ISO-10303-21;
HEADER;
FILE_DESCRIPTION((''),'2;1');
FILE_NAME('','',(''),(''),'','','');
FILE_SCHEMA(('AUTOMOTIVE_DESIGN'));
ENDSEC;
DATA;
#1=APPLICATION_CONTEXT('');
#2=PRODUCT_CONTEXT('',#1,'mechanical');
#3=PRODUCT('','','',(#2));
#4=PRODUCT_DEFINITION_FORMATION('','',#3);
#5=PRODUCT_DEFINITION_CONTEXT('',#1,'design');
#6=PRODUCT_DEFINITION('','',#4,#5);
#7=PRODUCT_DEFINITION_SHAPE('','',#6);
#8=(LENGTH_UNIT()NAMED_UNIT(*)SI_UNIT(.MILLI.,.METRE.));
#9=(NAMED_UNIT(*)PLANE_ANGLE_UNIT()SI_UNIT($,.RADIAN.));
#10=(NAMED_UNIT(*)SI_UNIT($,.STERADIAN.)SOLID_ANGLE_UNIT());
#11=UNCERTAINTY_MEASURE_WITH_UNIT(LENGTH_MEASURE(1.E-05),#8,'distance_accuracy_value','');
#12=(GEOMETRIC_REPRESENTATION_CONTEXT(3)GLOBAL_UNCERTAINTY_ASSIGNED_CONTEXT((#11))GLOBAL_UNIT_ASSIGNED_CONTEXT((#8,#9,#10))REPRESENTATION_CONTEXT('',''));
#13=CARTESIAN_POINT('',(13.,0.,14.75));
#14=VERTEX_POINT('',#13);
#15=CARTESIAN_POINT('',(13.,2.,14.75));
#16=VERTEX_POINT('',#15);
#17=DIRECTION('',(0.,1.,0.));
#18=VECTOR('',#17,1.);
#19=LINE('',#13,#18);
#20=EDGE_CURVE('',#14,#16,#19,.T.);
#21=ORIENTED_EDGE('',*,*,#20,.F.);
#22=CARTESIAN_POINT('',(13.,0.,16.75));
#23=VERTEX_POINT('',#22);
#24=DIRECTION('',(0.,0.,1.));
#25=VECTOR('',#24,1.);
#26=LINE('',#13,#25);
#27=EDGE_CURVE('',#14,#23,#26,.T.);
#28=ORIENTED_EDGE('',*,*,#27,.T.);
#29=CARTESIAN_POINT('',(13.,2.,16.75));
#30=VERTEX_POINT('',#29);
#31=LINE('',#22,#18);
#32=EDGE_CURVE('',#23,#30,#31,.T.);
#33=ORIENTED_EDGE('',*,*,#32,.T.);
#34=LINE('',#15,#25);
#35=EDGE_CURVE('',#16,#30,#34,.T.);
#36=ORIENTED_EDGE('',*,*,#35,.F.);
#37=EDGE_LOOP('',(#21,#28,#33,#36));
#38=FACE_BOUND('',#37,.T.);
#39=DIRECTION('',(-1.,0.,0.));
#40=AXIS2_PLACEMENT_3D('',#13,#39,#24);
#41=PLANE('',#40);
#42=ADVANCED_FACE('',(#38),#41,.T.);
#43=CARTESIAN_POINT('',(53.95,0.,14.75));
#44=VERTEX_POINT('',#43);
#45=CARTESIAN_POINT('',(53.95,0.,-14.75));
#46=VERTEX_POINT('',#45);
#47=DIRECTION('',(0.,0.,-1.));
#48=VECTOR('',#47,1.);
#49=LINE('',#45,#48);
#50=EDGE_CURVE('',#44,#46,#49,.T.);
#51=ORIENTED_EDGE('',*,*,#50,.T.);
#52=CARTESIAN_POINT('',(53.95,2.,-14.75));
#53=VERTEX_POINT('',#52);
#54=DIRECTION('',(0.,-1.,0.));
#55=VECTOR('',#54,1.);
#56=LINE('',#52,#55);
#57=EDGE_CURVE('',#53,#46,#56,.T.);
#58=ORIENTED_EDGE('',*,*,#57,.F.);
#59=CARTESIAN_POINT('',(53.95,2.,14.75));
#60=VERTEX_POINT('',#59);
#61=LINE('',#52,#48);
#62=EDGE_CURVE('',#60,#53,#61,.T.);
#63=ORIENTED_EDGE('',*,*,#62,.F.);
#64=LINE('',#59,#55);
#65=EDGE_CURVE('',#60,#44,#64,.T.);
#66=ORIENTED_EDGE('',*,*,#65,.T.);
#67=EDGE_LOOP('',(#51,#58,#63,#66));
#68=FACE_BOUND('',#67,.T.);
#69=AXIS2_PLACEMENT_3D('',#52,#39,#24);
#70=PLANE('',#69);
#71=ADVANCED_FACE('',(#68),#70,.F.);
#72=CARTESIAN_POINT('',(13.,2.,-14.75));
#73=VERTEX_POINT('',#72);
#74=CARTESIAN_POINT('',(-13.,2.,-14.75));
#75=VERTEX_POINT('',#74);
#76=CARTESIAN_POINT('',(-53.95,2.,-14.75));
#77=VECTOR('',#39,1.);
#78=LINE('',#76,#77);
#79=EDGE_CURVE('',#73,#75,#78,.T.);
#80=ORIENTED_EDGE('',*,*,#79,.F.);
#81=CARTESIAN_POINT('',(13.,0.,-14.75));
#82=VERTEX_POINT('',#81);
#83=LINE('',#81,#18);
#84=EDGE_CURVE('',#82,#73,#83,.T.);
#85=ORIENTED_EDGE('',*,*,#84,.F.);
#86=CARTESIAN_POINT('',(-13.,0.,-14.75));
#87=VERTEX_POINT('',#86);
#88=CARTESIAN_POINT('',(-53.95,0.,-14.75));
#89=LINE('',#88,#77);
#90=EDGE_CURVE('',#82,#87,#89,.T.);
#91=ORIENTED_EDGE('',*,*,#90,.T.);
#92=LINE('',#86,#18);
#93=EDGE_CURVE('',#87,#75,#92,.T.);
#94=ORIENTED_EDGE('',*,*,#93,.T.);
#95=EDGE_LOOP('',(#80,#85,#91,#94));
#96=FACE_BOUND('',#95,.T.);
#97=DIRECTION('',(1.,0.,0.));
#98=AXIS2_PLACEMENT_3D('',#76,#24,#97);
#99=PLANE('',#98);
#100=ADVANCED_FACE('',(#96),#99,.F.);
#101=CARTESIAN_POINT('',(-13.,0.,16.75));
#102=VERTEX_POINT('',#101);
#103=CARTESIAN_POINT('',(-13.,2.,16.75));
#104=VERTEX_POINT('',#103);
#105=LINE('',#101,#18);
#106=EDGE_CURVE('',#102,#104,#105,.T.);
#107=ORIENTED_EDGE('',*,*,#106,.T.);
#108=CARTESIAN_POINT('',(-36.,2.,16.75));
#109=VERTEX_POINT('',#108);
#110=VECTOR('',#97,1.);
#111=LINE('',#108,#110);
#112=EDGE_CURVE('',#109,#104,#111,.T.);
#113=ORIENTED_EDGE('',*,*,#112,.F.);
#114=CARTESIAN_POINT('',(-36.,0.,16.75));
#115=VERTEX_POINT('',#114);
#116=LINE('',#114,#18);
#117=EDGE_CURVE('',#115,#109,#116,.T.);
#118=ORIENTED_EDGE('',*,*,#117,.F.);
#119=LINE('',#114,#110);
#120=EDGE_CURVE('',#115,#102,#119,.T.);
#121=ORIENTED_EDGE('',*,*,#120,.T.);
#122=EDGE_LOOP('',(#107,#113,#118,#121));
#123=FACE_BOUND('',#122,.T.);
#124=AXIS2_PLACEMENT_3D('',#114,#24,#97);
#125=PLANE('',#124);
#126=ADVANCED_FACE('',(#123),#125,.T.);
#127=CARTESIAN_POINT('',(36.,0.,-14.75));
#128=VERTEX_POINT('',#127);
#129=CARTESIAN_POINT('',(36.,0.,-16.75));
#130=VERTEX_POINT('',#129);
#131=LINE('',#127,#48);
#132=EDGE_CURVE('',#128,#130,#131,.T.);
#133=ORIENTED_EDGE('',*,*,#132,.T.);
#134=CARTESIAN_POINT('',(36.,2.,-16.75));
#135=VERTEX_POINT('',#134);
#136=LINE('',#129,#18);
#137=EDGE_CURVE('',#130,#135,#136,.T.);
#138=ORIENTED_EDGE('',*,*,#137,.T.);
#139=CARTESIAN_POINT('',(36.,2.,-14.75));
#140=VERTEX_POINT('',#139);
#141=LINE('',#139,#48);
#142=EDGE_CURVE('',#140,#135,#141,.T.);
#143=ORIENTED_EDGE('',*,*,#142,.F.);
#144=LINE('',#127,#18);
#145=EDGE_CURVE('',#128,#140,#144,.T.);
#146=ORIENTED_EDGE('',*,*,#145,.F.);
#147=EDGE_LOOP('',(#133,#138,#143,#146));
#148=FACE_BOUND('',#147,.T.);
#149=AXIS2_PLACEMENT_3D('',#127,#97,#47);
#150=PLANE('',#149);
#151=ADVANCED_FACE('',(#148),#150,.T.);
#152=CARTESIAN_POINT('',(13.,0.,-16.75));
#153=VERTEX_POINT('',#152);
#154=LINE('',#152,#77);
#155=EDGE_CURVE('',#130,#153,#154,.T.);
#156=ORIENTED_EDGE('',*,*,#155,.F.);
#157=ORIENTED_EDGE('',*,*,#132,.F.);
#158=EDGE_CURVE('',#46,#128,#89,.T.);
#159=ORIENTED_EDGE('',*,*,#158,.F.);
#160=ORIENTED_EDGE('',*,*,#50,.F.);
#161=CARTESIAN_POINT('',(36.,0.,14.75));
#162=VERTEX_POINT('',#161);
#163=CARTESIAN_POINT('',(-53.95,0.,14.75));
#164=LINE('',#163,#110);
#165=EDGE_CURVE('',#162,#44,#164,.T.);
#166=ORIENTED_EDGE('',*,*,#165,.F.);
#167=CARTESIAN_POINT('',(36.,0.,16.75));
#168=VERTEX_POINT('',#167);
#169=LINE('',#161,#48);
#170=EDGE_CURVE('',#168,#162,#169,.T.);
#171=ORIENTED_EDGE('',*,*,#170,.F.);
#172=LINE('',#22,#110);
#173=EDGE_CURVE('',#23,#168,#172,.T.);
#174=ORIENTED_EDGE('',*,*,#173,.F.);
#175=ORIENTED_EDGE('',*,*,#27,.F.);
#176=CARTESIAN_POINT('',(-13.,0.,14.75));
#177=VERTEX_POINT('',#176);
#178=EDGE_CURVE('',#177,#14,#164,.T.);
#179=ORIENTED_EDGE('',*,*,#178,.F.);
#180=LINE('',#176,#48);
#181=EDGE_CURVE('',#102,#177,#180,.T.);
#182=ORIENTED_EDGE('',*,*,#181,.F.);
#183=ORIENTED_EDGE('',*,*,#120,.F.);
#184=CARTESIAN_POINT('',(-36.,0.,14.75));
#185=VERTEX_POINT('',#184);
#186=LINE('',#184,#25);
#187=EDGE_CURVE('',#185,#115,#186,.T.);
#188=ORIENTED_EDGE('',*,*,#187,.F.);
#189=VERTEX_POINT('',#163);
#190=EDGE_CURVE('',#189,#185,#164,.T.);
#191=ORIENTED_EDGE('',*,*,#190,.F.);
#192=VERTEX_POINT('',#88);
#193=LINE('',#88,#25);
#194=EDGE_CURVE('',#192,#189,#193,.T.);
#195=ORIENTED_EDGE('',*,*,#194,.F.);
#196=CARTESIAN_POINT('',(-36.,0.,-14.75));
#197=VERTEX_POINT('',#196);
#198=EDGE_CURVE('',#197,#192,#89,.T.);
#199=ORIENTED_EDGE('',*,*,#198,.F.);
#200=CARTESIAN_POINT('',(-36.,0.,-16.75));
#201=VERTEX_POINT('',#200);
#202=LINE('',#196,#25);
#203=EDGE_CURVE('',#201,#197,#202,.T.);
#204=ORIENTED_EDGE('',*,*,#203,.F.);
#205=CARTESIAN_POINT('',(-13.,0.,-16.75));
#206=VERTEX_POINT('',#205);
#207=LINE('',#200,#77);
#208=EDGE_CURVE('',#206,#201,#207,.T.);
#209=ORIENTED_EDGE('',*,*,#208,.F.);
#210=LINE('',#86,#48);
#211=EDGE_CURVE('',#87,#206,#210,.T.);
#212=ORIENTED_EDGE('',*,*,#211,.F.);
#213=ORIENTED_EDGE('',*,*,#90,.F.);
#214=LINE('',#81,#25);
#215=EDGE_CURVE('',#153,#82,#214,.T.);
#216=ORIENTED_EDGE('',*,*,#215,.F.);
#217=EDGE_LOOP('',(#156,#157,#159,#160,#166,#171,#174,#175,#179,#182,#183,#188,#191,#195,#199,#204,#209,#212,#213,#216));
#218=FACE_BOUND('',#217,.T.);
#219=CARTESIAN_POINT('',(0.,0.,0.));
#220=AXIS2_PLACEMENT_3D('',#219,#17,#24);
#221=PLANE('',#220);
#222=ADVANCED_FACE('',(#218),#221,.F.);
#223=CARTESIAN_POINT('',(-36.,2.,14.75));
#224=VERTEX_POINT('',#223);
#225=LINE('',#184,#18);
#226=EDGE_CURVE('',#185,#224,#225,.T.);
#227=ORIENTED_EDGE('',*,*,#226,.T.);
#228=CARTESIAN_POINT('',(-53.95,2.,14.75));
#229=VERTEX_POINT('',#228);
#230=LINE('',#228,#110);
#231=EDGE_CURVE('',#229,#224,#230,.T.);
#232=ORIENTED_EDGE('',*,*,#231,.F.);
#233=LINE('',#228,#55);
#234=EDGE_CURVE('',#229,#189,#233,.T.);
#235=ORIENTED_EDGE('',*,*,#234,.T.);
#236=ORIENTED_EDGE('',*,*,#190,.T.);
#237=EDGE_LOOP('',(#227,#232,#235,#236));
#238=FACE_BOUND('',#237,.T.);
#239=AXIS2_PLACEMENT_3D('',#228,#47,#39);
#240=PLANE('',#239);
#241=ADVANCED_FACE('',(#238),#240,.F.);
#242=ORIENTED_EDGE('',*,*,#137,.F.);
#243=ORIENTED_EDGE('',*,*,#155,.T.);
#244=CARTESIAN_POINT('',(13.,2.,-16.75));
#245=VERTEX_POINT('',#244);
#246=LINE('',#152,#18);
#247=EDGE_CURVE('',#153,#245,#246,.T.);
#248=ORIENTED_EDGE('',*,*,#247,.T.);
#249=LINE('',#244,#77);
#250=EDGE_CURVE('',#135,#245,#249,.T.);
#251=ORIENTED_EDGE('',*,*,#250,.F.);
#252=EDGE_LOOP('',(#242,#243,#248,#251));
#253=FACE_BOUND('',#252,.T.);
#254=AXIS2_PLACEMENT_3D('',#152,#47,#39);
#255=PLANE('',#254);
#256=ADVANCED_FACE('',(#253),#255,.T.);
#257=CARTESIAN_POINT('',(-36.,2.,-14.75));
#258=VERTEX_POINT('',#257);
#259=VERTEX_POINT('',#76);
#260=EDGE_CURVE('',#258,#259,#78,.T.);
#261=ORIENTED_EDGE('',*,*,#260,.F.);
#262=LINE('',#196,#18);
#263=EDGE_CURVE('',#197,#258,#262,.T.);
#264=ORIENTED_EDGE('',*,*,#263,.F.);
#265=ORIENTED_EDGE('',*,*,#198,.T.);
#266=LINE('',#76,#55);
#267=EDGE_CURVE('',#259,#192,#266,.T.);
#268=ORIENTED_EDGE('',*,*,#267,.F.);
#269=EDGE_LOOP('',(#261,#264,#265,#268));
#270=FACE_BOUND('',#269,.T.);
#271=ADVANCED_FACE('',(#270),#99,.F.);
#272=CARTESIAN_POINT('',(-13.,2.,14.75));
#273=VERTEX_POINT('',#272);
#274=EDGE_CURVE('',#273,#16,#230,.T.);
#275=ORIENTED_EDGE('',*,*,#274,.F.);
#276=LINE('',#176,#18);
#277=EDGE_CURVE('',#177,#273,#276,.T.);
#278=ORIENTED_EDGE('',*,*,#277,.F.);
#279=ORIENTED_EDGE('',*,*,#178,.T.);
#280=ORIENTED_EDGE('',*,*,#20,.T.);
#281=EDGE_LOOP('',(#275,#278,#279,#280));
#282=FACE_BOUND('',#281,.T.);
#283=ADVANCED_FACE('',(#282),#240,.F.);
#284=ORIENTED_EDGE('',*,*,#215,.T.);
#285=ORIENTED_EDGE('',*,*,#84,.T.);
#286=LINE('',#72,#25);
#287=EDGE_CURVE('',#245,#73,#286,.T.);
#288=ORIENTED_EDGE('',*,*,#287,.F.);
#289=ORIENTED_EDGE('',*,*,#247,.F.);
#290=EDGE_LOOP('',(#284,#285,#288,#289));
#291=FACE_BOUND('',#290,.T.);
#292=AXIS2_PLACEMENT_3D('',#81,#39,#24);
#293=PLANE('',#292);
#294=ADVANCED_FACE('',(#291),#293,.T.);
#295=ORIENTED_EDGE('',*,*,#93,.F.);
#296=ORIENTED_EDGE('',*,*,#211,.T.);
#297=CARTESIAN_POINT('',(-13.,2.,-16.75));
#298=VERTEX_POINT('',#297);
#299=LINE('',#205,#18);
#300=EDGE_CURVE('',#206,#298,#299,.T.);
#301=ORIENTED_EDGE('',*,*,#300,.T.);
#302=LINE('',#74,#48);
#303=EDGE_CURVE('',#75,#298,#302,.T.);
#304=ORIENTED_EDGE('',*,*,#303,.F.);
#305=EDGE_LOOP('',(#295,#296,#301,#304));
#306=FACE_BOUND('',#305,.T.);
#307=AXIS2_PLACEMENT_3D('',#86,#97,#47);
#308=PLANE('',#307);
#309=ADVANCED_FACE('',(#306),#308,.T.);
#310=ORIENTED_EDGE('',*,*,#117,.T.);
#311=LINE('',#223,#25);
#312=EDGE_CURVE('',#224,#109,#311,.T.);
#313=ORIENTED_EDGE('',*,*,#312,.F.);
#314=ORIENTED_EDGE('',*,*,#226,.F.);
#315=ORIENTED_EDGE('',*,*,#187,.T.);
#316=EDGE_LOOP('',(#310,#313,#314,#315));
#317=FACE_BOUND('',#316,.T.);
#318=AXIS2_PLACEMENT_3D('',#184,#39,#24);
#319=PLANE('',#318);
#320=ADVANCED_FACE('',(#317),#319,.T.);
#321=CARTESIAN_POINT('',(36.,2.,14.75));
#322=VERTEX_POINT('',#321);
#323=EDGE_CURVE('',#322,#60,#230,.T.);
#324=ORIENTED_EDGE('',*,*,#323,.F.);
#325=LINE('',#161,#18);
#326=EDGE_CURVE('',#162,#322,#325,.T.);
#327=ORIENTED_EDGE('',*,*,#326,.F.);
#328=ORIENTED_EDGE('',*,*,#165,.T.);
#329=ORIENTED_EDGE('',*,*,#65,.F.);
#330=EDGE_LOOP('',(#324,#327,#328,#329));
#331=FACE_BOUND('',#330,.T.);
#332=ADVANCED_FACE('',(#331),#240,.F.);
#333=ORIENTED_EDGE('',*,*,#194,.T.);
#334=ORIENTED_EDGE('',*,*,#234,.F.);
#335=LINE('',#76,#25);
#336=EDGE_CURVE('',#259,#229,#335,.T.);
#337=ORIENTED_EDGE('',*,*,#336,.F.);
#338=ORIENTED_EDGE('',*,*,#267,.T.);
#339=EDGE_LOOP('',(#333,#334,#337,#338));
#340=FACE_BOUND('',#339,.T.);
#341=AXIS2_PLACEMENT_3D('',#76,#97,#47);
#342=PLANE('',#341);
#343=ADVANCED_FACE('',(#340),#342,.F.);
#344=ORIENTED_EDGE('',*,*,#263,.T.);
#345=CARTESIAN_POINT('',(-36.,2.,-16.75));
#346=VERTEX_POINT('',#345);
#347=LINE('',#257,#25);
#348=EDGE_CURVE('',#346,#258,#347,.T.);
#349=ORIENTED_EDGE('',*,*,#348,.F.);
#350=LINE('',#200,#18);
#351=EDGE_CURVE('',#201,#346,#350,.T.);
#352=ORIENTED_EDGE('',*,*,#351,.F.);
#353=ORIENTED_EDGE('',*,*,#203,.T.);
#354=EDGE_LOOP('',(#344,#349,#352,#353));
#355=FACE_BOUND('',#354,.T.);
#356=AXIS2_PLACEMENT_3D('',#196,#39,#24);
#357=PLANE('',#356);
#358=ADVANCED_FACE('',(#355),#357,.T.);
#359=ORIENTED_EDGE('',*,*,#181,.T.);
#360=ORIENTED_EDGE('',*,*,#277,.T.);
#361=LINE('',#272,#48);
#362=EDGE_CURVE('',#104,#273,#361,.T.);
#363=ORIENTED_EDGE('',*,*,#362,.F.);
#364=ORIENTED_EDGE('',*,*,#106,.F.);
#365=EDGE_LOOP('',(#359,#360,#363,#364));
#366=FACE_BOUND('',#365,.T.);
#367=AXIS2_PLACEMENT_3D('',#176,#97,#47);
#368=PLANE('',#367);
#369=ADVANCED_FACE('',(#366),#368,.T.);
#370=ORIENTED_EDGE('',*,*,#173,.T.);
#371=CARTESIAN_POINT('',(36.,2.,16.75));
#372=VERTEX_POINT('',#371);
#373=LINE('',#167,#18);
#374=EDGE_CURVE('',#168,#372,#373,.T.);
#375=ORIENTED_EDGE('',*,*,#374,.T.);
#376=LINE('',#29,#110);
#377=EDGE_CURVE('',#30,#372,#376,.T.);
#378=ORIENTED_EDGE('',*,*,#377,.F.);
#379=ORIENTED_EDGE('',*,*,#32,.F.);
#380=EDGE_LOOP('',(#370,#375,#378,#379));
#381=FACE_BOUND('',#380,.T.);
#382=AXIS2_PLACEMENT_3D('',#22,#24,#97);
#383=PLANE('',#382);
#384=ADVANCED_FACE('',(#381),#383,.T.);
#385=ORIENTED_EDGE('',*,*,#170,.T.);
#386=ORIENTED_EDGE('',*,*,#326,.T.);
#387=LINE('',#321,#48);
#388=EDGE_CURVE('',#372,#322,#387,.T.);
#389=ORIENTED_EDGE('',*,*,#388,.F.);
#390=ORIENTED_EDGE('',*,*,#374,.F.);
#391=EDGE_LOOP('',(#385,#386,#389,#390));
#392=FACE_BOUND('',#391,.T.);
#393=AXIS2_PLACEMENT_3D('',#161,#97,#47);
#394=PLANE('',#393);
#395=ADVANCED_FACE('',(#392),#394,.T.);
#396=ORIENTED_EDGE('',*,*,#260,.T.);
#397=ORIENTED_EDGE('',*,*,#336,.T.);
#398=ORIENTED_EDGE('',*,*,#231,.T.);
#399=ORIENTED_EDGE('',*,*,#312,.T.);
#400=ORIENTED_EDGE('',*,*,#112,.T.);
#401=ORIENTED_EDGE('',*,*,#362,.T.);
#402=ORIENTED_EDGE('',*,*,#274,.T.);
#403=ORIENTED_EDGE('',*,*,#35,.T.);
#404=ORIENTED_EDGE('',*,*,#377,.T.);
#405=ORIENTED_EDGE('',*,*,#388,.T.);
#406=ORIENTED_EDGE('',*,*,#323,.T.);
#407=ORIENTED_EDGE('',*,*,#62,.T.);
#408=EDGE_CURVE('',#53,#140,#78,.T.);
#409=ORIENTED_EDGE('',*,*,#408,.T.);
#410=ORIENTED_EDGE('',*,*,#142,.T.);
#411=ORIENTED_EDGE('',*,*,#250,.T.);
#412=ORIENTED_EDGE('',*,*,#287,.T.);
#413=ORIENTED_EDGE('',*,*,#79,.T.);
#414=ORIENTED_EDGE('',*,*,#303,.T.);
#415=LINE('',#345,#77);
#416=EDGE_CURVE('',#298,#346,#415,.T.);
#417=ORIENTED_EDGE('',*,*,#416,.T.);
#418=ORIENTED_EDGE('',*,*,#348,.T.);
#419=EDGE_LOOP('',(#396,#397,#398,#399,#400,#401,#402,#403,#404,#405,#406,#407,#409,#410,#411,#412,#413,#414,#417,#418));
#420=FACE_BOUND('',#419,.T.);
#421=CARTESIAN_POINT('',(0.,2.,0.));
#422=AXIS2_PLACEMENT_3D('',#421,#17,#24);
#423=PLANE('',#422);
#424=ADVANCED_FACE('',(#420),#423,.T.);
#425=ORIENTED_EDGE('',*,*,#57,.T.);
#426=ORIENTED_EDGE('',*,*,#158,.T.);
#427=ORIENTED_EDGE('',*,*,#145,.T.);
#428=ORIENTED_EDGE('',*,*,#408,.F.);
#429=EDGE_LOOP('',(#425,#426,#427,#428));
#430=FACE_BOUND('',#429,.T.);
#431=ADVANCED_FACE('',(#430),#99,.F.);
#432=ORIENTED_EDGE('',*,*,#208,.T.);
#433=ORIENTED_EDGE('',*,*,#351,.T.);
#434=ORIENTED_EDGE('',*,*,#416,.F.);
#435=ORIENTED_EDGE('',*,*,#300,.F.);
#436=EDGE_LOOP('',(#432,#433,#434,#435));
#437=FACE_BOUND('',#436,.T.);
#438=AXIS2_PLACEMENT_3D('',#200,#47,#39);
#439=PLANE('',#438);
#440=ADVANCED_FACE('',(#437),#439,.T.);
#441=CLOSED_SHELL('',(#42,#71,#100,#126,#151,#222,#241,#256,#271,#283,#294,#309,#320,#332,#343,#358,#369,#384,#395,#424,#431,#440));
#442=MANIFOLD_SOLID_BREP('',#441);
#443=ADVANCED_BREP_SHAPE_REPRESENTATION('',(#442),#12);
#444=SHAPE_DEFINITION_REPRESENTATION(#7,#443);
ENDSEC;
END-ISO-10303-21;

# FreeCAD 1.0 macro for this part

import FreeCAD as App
import Part
import Sketcher
Q = App.Units.Quantity


def add_polygon(sketch, points):
    """Adds a closed chain of lines whose ends are joined by coincident constraints."""
    first, n = sketch.GeometryCount, len(points)
    for a, b in zip(points, points[1:] + points[:1]):
        sketch.addGeometry(Part.LineSegment(App.Vector(*a, 0), App.Vector(*b, 0)), False)
    for i in range(n):
        sketch.addConstraint(Sketcher.Constraint("Coincident", first + i, 2, first + (i + 1) % n, 1))

doc = App.newDocument("Part")
params = doc.addObject("Spreadsheet::Sheet", "Params")
for row, (alias, value) in enumerate([
    ("sketch1_width", "107.9 mm"),
    ("sketch1_height", "29.5 mm"),
    ("pad1_length", "2 mm"),
    ("sketch2_width", "23 mm"),
    ("sketch2_height", "2 mm"),
    ("pad2_length", "2 mm"),
], start=1):
    params.set(f"A{row}", alias)
    params.set(f"B{row}", "=" + value)
    params.setAlias(f"B{row}", alias)

body = doc.addObject("PartDesign::Body", "Body")

# Sketch on XZ plane
sketch1 = doc.addObject("Sketcher::SketchObject", "Sketch")
body.addObject(sketch1)
sketch1.AttachmentSupport = (doc.XZ_Plane, [""])
sketch1.MapMode = "FlatFace"
add_polygon(sketch1, [(-54, -15), (-54, 15), (54, 15), (54, -15)])  # lines 0-3
sketch1.addConstraint(Sketcher.Constraint("Vertical", 0))
sketch1.addConstraint(Sketcher.Constraint("Horizontal", 1))
sketch1.addConstraint(Sketcher.Constraint("Vertical", 2))
sketch1.addConstraint(Sketcher.Constraint("Horizontal", 3))
sketch1.addConstraint(Sketcher.Constraint("Symmetric", 0, 2, 2, 2, -1, 1))
sketch1.addConstraint(Sketcher.Constraint("DistanceX", 1, 1, 1, 2, Q("107.9 mm")))
sketch1.addConstraint(Sketcher.Constraint("DistanceY", 0, 1, 0, 2, Q("29.5 mm")))
sketch1.setExpression("Constraints[9]", "Params.sketch1_width")
sketch1.setExpression("Constraints[10]", "Params.sketch1_height")
pad1 = doc.addObject("PartDesign::Pad", "Pad")
body.addObject(pad1)
pad1.Profile = sketch1
pad1.setExpression("Length", "Params.pad1_length")
pad1.Reversed = True

# Sketch on XZ plane
sketch2 = doc.addObject("Sketcher::SketchObject", "Sketch001")
body.addObject(sketch2)
sketch2.AttachmentSupport = (doc.XZ_Plane, [""])
sketch2.MapMode = "FlatFace"
sketch2.AttachmentOffset = App.Placement(App.Vector(0, 0, -2), App.Rotation())
add_polygon(sketch2, [(-36, -16.8), (-36, -14.8), (-13, -14.8), (-13, -16.8)])  # lines 0-3
add_polygon(sketch2, [(13, -16.8), (13, -14.8), (36, -14.8), (36, -16.8)])  # lines 4-7
add_polygon(sketch2, [(13, 14.8), (13, 16.8), (36, 16.8), (36, 14.8)])  # lines 8-11
add_polygon(sketch2, [(-36, 14.8), (-36, 16.8), (-13, 16.8), (-13, 14.8)])  # lines 12-15
sketch2.addConstraint(Sketcher.Constraint("Vertical", 0))
sketch2.addConstraint(Sketcher.Constraint("Horizontal", 1))
sketch2.addConstraint(Sketcher.Constraint("Vertical", 2))
sketch2.addConstraint(Sketcher.Constraint("Horizontal", 3))
sketch2.addConstraint(Sketcher.Constraint("Vertical", 4))
sketch2.addConstraint(Sketcher.Constraint("Horizontal", 5))
sketch2.addConstraint(Sketcher.Constraint("Vertical", 6))
sketch2.addConstraint(Sketcher.Constraint("Horizontal", 7))
sketch2.addConstraint(Sketcher.Constraint("Vertical", 8))
sketch2.addConstraint(Sketcher.Constraint("Horizontal", 9))
sketch2.addConstraint(Sketcher.Constraint("Vertical", 10))
sketch2.addConstraint(Sketcher.Constraint("Horizontal", 11))
sketch2.addConstraint(Sketcher.Constraint("Vertical", 12))
sketch2.addConstraint(Sketcher.Constraint("Horizontal", 13))
sketch2.addConstraint(Sketcher.Constraint("Vertical", 14))
sketch2.addConstraint(Sketcher.Constraint("Horizontal", 15))
sketch2.addConstraint(Sketcher.Constraint("Symmetric", 2, 2, 8, 2, -1, 1))
sketch2.addConstraint(Sketcher.Constraint("Symmetric", 0, 2, 10, 2, -1, 1))
sketch2.addConstraint(Sketcher.Constraint("Symmetric", 6, 2, 12, 2, -1, 1))
sketch2.addConstraint(Sketcher.Constraint("Symmetric", 4, 2, 14, 2, -1, 1))
sketch2.addConstraint(Sketcher.Constraint("Symmetric", 1, 2, 4, 2, -2))
sketch2.addConstraint(Sketcher.Constraint("Symmetric", 3, 2, 6, 2, -2))
sketch2.addConstraint(Sketcher.Constraint("DistanceX", 1, 1, 1, 2, Q("23 mm")))
sketch2.addConstraint(Sketcher.Constraint("DistanceY", 0, 1, 0, 2, Q("2 mm")))
sketch2.addConstraint(Sketcher.Constraint("DistanceX", 0, 2, -1, 1, Q("36 mm")))
sketch2.addConstraint(Sketcher.Constraint("DistanceY", 4, 2, 8, 2, Q("31.5 mm")))
sketch2.setExpression("Constraints[38]", "Params.sketch2_width")
sketch2.setExpression("Constraints[39]", "Params.sketch2_height")
pad2 = doc.addObject("PartDesign::Pad", "Pad001")
body.addObject(pad2)
pad2.Profile = sketch2
pad2.setExpression("Length", "Params.pad2_length")

doc.recompute()
